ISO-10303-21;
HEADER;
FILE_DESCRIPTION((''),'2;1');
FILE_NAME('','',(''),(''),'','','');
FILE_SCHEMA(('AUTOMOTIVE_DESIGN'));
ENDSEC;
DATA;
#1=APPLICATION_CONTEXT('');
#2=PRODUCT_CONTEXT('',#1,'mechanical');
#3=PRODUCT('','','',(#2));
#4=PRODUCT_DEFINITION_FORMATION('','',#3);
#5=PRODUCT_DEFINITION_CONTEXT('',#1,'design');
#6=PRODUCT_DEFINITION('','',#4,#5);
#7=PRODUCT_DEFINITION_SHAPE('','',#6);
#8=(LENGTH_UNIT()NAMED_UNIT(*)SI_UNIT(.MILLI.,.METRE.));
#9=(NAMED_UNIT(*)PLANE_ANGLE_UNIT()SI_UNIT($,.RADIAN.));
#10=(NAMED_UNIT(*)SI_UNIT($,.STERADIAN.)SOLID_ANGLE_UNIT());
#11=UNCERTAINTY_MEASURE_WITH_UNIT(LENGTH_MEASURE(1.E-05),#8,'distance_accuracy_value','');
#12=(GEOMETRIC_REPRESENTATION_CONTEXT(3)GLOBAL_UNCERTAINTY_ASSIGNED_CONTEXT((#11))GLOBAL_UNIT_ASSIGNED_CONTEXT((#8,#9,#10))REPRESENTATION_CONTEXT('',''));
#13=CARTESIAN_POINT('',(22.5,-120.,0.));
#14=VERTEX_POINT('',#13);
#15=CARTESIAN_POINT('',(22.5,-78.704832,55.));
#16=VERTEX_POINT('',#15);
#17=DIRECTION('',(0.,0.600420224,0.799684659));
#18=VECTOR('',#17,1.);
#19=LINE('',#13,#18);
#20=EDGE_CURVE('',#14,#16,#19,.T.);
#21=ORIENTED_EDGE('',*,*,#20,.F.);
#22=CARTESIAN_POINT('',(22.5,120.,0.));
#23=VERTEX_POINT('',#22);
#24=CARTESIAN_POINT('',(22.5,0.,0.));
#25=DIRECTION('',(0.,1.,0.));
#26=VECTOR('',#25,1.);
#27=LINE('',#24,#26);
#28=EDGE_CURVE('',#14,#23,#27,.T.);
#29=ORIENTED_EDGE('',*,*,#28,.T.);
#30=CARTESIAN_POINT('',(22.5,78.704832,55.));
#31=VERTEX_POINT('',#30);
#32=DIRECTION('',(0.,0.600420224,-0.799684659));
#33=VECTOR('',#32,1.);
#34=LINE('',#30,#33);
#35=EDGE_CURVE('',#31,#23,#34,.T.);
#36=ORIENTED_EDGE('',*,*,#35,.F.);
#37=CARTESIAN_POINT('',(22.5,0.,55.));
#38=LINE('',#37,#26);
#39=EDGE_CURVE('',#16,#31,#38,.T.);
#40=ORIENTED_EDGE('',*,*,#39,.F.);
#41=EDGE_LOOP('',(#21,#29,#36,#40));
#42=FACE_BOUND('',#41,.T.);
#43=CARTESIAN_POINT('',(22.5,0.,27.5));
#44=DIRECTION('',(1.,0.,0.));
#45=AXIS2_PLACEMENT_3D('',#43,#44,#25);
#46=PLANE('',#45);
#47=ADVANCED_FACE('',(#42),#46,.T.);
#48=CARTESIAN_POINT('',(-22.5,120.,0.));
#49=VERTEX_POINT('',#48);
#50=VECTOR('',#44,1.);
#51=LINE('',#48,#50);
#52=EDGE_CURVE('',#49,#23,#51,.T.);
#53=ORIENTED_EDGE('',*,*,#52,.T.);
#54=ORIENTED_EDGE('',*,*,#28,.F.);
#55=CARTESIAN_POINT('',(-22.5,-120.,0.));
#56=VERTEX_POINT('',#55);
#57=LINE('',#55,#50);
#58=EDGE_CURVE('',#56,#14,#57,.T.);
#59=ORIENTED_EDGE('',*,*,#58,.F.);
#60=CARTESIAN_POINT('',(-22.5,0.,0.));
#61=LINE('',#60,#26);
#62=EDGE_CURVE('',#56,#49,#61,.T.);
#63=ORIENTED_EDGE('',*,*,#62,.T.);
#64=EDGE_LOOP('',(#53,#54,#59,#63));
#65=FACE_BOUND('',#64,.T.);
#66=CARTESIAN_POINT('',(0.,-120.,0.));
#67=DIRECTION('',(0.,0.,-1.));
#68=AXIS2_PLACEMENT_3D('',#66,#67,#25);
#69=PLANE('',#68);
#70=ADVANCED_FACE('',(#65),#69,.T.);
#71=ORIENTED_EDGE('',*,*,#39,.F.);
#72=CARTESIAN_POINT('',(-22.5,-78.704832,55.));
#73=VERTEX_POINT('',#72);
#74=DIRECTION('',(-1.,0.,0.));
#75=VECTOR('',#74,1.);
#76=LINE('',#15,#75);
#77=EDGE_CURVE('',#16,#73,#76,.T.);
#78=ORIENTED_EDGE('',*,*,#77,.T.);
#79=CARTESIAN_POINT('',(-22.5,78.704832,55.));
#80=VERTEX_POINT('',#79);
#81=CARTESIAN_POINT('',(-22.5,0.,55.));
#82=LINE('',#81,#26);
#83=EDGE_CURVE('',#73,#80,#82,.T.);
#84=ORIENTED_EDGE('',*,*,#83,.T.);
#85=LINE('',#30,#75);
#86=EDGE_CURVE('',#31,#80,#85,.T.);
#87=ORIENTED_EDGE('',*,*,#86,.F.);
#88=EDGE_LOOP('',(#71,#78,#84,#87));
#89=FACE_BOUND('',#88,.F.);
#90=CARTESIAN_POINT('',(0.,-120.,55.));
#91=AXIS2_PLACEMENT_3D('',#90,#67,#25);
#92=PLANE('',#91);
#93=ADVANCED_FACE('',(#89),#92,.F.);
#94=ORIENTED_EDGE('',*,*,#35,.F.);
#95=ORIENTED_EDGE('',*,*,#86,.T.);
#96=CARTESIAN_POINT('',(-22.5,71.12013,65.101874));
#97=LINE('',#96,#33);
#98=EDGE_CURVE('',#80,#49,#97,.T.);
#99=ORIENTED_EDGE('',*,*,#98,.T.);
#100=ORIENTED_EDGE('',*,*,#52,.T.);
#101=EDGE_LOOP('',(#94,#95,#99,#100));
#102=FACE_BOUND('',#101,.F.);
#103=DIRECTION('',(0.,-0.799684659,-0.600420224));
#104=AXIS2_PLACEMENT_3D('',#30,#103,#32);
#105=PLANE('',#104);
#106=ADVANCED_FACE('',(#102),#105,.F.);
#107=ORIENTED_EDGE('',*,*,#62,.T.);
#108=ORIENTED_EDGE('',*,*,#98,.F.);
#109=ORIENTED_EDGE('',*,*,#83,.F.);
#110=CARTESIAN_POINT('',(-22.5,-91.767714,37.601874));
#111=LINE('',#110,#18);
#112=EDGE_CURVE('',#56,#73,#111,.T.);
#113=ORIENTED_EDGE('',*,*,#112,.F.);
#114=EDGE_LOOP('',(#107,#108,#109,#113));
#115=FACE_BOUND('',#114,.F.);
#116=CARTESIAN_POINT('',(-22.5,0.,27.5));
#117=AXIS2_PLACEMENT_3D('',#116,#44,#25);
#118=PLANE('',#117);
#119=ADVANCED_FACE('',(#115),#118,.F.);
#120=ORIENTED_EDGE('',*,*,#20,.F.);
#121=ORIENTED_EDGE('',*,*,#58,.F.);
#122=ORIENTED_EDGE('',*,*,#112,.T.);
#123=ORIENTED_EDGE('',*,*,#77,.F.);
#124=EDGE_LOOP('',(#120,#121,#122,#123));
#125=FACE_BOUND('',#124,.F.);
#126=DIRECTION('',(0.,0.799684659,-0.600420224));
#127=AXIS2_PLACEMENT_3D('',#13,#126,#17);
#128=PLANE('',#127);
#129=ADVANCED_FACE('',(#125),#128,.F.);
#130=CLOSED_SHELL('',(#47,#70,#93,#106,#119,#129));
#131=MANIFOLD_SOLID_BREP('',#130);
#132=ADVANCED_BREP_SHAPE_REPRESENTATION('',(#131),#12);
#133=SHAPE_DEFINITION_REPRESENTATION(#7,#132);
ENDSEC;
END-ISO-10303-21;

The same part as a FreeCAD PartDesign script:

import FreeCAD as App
import Part
import Sketcher
from FreeCAD import Vector
Q = App.Units.Quantity


def add_polygon(sketch, points):
    """Adds a closed chain of lines whose ends are joined by coincident constraints."""
    first, n = sketch.GeometryCount, len(points)
    for a, b in zip(points, points[1:] + points[:1]):
        sketch.addGeometry(Part.LineSegment(App.Vector(*a, 0), App.Vector(*b, 0)), False)
    for i in range(n):
        sketch.addConstraint(Sketcher.Constraint("Coincident", first + i, 2, first + (i + 1) % n, 1))

doc = App.newDocument("Part")
body = doc.addObject("PartDesign::Body", "Body")

sketch1 = body.newObject("Sketcher::SketchObject", "Sketch")
sketch1.AttachmentSupport = (doc.getObject("XY_Plane"), [""])
sketch1.MapMode = "FlatFace"
add_polygon(sketch1, [(-18, 120), (-18, -120), (18, -120), (18, 120)])
sketch1.addConstraint(Sketcher.Constraint("Vertical", 0))
sketch1.addConstraint(Sketcher.Constraint("Horizontal", 1))
sketch1.addConstraint(Sketcher.Constraint("Vertical", 2))
sketch1.addConstraint(Sketcher.Constraint("Horizontal", 3))
sketch1.addConstraint(Sketcher.Constraint("Symmetric", 0, 2, 2, 2, -1, 1))
sketch1.addConstraint(Sketcher.Constraint("DistanceX", 1, 1, 1, 2, Q("35 mm")))
sketch1.addConstraint(Sketcher.Constraint("DistanceY", 0, 2, 0, 1, Q("240 mm")))
pad1 = body.newObject("PartDesign::Pad", "Pad")
pad1.Profile = sketch1
pad1.Length = 3

sketch2 = body.newObject("Sketcher::SketchObject", "Sketch001")
sketch2.AttachmentSupport = (doc.getObject("YZ_Plane"), [""])
sketch2.MapMode = "FlatFace"
add_polygon(sketch2, [(-120, 55), (-120, 0), (120, 0), (120, 55)])
sketch2.addConstraint(Sketcher.Constraint("Vertical", 0))
sketch2.addConstraint(Sketcher.Constraint("Horizontal", 1))
sketch2.addConstraint(Sketcher.Constraint("Vertical", 2))
sketch2.addConstraint(Sketcher.Constraint("Horizontal", 3))
sketch2.addConstraint(Sketcher.Constraint("Symmetric", 0, 2, 1, 2, -1, 1))
sketch2.addConstraint(Sketcher.Constraint("DistanceX", 1, 1, 1, 2, Q("240 mm")))
sketch2.addConstraint(Sketcher.Constraint("DistanceY", 0, 2, 0, 1, Q("55 mm")))
pad2 = body.newObject("PartDesign::Pad", "Pad001")
pad2.Profile = sketch2
pad2.Length = 45
pad2.Midplane = True

sketch3 = body.newObject("Sketcher::SketchObject", "Sketch002")
sketch3.AttachmentSupport = (doc.getObject("YZ_Plane"), [""])
sketch3.MapMode = "FlatFace"
sketch3.AttachmentOffset = App.Placement(Vector(0, 0, 22.5), App.Rotation())
add_polygon(sketch3, [(-120, 55), (-120, 0), (-79, 55)])
add_polygon(sketch3, [(79, 55), (120, 0), (120, 55)])
sketch3.addConstraint(Sketcher.Constraint("Vertical", 0))
sketch3.addConstraint(Sketcher.Constraint("Horizontal", 2))
sketch3.addConstraint(Sketcher.Constraint("Vertical", 4))
sketch3.addConstraint(Sketcher.Constraint("Horizontal", 5))
sketch3.addConstraint(Sketcher.Constraint("Symmetric", 0, 2, 3, 2, -1, 1))
sketch3.addConstraint(Sketcher.Constraint("Symmetric", 1, 2, 5, 2, -2))
sketch3.addConstraint(Sketcher.Constraint("PointOnObject", 0, 2, -1))
sketch3.addConstraint(Sketcher.Constraint("DistanceY", 0, 2, 0, 1, Q("55 mm")))
sketch3.addConstraint(Sketcher.Constraint("DistanceX", 0, 2, -1, 1, Q("120 mm")))
sketch3.addConstraint(Sketcher.Constraint("Angle", 1, Q("53.1 deg")))
pocket1 = body.newObject("PartDesign::Pocket", "Pocket")
pocket1.Profile = sketch3
pocket1.Type = "ThroughAll"

doc.recompute()
